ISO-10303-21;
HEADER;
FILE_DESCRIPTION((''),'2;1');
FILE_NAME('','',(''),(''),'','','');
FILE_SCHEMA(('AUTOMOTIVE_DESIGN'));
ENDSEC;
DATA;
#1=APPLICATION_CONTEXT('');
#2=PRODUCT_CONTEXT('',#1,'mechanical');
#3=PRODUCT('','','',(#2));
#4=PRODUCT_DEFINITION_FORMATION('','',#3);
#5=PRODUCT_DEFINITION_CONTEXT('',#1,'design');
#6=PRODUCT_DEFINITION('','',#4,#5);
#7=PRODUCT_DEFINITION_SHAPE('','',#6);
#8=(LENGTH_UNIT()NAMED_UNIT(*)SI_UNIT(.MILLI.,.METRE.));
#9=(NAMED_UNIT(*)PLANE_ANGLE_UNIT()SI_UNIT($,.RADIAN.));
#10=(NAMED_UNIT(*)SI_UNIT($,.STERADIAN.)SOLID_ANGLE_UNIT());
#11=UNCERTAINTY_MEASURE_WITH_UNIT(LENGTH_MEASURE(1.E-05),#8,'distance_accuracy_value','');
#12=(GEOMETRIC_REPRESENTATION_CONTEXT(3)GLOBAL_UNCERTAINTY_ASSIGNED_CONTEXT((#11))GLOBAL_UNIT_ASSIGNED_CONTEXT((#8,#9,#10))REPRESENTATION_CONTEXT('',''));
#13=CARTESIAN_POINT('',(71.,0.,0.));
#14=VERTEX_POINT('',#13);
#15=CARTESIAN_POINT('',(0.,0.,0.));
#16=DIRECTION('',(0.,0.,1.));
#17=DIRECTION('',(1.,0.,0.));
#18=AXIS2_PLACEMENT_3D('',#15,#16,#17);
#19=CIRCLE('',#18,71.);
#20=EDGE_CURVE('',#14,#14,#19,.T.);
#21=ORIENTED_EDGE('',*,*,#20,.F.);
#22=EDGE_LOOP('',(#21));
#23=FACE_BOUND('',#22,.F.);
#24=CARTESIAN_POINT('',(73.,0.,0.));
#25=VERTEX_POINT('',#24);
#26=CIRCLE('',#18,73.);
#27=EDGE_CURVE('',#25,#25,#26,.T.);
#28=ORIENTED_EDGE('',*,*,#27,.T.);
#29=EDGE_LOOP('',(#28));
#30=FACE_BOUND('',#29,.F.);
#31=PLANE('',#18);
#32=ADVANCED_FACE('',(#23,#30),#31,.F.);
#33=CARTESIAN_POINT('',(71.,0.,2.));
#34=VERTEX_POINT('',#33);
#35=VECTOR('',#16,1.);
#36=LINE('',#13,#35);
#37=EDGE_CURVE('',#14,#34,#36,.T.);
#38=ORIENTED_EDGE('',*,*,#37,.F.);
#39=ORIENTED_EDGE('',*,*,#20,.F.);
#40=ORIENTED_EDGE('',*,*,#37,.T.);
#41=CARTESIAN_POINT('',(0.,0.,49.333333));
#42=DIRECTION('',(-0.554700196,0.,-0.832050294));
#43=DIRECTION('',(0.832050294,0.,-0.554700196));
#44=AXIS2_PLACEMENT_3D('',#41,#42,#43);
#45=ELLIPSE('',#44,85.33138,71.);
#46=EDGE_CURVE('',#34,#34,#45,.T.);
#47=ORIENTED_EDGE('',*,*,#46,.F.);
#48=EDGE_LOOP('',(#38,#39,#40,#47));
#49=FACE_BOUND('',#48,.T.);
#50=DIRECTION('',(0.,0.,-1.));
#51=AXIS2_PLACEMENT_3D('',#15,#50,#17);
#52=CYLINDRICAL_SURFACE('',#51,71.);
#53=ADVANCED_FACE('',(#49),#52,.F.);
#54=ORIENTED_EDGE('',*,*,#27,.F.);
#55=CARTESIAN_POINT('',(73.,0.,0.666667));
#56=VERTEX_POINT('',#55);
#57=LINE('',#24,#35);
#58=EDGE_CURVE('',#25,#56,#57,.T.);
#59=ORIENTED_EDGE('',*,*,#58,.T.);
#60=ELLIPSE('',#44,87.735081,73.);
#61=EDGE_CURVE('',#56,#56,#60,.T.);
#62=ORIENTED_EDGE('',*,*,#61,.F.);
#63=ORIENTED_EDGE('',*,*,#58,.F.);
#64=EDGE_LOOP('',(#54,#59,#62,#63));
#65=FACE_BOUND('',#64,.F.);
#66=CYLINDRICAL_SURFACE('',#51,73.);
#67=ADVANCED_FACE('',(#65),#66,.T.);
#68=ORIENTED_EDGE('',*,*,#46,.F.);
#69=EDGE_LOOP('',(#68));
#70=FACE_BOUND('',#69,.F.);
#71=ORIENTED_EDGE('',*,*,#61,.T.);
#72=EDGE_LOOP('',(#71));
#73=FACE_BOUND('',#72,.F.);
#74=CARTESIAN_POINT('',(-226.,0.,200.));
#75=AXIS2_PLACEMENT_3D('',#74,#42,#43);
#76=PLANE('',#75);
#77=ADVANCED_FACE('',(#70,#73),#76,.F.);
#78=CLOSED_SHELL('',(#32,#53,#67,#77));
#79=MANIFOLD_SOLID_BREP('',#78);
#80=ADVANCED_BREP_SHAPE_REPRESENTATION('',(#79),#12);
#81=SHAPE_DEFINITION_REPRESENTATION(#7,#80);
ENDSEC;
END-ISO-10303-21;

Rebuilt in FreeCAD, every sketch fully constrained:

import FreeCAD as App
import Part
import Sketcher
from FreeCAD import Vector
Q = App.Units.Quantity


def add_polygon(sketch, points):
    """Adds a closed chain of lines whose ends are joined by coincident constraints."""
    first, n = sketch.GeometryCount, len(points)
    for a, b in zip(points, points[1:] + points[:1]):
        sketch.addGeometry(Part.LineSegment(App.Vector(*a, 0), App.Vector(*b, 0)), False)
    for i in range(n):
        sketch.addConstraint(Sketcher.Constraint("Coincident", first + i, 2, first + (i + 1) % n, 1))

doc = App.newDocument("Part")
body = doc.addObject("PartDesign::Body", "Body")

# Sketch on XY plane
sketch1 = body.newObject("Sketcher::SketchObject", "Sketch")
sketch1.AttachmentSupport = (doc.getObject("XY_Plane"), [""])
sketch1.MapMode = "FlatFace"
sketch1.addGeometry([
    Part.Circle(Vector(0, 0, 0), Vector(0, 0, 1), 73),
    Part.Circle(Vector(0, 0, 0), Vector(0, 0, 1), 71),
], False)
sketch1.addConstraint([
    Sketcher.Constraint("Coincident", 0, 3, -1, 1),
    Sketcher.Constraint("Coincident", 1, 3, -1, 1),
    Sketcher.Constraint("Diameter", 0, Q("146 mm")),
    Sketcher.Constraint("Diameter", 1, Q("142 mm")),
])
pad1 = body.newObject("PartDesign::Pad", "Pad")
pad1.Profile = sketch1
pad1.Length = 100

# Sketch on XZ plane
sketch2 = body.newObject("Sketcher::SketchObject", "Sketch001")
sketch2.AttachmentSupport = (doc.getObject("XZ_Plane"), [""])
sketch2.MapMode = "FlatFace"
add_polygon(sketch2, [(74, 200), (74, 0), (-226, 200)])  # lines 0-2
sketch2.addConstraint([
    Sketcher.Constraint("Vertical", 0),
    Sketcher.Constraint("Horizontal", 2),
    Sketcher.Constraint("PointOnObject", 0, 2, -1),
    Sketcher.Constraint("DistanceX", 2, 1, 2, 2, Q("300 mm")),
    Sketcher.Constraint("DistanceY", 0, 2, 0, 1, Q("200 mm")),
    Sketcher.Constraint("DistanceX", -1, 1, 0, 2, Q("74 mm")),
])
pocket1 = body.newObject("PartDesign::Pocket", "Pocket")
pocket1.Profile = sketch2
pocket1.Length = 200
pocket1.Midplane = True

doc.recompute()
